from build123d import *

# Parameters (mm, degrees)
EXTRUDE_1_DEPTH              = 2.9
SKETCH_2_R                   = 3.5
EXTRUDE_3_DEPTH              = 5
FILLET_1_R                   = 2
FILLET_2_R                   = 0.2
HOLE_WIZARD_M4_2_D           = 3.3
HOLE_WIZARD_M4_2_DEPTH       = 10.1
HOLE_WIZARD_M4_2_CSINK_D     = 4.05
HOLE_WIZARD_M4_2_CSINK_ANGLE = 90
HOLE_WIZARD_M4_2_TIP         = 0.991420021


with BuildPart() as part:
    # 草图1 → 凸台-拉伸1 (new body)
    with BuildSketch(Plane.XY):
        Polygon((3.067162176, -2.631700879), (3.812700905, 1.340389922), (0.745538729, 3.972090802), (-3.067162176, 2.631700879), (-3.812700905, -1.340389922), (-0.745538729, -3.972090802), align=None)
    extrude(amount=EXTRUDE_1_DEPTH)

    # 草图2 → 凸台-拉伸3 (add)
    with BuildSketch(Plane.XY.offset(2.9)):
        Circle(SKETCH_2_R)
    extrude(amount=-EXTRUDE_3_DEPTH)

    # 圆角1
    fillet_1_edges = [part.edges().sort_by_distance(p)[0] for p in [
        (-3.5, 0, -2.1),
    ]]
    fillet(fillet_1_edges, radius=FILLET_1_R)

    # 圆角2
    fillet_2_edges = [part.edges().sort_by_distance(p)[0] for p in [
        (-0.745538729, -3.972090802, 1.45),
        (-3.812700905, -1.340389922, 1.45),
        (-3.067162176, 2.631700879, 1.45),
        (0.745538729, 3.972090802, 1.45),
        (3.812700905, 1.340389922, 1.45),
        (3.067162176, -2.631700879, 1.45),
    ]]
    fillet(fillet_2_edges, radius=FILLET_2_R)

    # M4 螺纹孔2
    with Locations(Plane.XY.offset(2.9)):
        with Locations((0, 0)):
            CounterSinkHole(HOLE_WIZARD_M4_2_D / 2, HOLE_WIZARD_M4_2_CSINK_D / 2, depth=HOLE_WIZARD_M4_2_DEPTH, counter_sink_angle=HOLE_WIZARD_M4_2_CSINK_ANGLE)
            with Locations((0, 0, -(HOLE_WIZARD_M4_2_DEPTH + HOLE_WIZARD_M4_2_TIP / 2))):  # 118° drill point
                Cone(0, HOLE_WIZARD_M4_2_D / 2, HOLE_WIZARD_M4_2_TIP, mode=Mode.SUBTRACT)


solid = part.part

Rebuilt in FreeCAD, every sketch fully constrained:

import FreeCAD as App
import Part
import Sketcher


def edges_at(feature, points):
    """Names of the edges that pass closest to the given points."""
    edges = feature.Shape.Edges
    near = lambda p: min(range(len(edges)), key=lambda i: edges[i].distToShape(Part.Vertex(*p))[0])
    return sorted({f"Edge{near(p) + 1}" for p in points})


def add_polygon(sketch, points):
    """Adds a closed chain of lines whose ends are joined by coincident constraints."""
    first, n = sketch.GeometryCount, len(points)
    for a, b in zip(points, points[1:] + points[:1]):
        sketch.addGeometry(Part.LineSegment(App.Vector(*a, 0), App.Vector(*b, 0)), False)
    for i in range(n):
        sketch.addConstraint(Sketcher.Constraint("Coincident", first + i, 2, first + (i + 1) % n, 1))

doc = App.newDocument("Part")
body = doc.addObject("PartDesign::Body", "Body")

# Sketch on XY plane
sketch1 = body.newObject("Sketcher::SketchObject", "Sketch")
sketch1.AttachmentSupport = (doc.getObject("XY_Plane"), [""])
sketch1.MapMode = "FlatFace"
add_polygon(sketch1, [(3.1, -2.6), (3.8, 1.3), (0.7, 4), (-3.1, 2.6), (-3.8, -1.3), (-0.7, -4)])  # lines 0-5
sketch1.addConstraint([
    Sketcher.Constraint("Symmetric", 0, 2, 3, 2, -1, 1),
    Sketcher.Constraint("Symmetric", 1, 2, 4, 2, -1, 1),
    Sketcher.Constraint("Symmetric", 2, 2, 5, 2, -1, 1),
    Sketcher.Constraint("Equal", 0, 1),
    Sketcher.Constraint("Equal", 1, 2),
    Sketcher.Constraint("DistanceX", -1, 1, 0, 2, 3.812701),
    Sketcher.Constraint("DistanceY", -1, 1, 2, 2, 2.631701),
    Sketcher.Constraint("DistanceY", 0, 2, 1, 2, 2.631701),
    Sketcher.Constraint("DistanceX", 2, 2, 1, 2, 3.812701),
])
pad1 = body.newObject("PartDesign::Pad", "Pad")
pad1.Profile = sketch1
pad1.Length = 2.9

# Sketch on XY plane
sketch2 = body.newObject("Sketcher::SketchObject", "Sketch001")
sketch2.AttachmentSupport = (doc.getObject("XY_Plane"), [""])
sketch2.MapMode = "FlatFace"
sketch2.AttachmentOffset = App.Placement(App.Vector(0, 0, 2.9), App.Rotation())
sketch2.addGeometry(Part.Circle(App.Vector(0, 0, 0), App.Vector(0, 0, 1), 3.5), False)
sketch2.addConstraint([
    Sketcher.Constraint("Coincident", 0, 3, -1, 1),
    Sketcher.Constraint("Diameter", 0, 7.0),
])
pad2 = body.newObject("PartDesign::Pad", "Pad001")
pad2.Profile = sketch2
pad2.Length = 5
pad2.Reversed = True
doc.recompute()

fillet = body.newObject("PartDesign::Fillet", "Fillet")
fillet.Base = (pad2, edges_at(pad2, [(-3.5, 0, -2.1)]))
fillet.Radius = 2
doc.recompute()

fillet2 = body.newObject("PartDesign::Fillet", "Fillet001")
fillet2.Base = (fillet, edges_at(fillet, [
    (-0.746, -3.972, 1.45),
    (-3.813, -1.34, 1.45),
    (-3.067, 2.632, 1.45),
    (0.746, 3.972, 1.45),
    (3.813, 1.34, 1.45),
    (3.067, -2.632, 1.45),
]))
fillet2.Radius = 0.2

# Sketch on XY plane
sketch3 = body.newObject("Sketcher::SketchObject", "Sketch002")
sketch3.AttachmentSupport = (doc.getObject("XY_Plane"), [""])
sketch3.MapMode = "FlatFace"
sketch3.AttachmentOffset = App.Placement(App.Vector(0, 0, 2.9), App.Rotation())
sketch3.addGeometry(Part.Circle(App.Vector(0, 0, 0), App.Vector(0, 0, 1), 1.6), False)
sketch3.addConstraint([
    Sketcher.Constraint("Coincident", 0, 3, -1, 1),
    Sketcher.Constraint("Diameter", 0, 3.3),
])
doc.recompute()
hole = body.newObject("PartDesign::Hole", "Hole")
hole.Profile = sketch3
hole.ThreadType = "None"
hole.Diameter = 3.3
hole.DepthType = "Dimension"
hole.Depth = 10.1
hole.DrillPoint = "Angled"
hole.DrillPointAngle = 118
hole.HoleCutType = "Countersink"
hole.HoleCutDiameter = 4.05
hole.HoleCutCountersinkAngle = 90

doc.recompute()
